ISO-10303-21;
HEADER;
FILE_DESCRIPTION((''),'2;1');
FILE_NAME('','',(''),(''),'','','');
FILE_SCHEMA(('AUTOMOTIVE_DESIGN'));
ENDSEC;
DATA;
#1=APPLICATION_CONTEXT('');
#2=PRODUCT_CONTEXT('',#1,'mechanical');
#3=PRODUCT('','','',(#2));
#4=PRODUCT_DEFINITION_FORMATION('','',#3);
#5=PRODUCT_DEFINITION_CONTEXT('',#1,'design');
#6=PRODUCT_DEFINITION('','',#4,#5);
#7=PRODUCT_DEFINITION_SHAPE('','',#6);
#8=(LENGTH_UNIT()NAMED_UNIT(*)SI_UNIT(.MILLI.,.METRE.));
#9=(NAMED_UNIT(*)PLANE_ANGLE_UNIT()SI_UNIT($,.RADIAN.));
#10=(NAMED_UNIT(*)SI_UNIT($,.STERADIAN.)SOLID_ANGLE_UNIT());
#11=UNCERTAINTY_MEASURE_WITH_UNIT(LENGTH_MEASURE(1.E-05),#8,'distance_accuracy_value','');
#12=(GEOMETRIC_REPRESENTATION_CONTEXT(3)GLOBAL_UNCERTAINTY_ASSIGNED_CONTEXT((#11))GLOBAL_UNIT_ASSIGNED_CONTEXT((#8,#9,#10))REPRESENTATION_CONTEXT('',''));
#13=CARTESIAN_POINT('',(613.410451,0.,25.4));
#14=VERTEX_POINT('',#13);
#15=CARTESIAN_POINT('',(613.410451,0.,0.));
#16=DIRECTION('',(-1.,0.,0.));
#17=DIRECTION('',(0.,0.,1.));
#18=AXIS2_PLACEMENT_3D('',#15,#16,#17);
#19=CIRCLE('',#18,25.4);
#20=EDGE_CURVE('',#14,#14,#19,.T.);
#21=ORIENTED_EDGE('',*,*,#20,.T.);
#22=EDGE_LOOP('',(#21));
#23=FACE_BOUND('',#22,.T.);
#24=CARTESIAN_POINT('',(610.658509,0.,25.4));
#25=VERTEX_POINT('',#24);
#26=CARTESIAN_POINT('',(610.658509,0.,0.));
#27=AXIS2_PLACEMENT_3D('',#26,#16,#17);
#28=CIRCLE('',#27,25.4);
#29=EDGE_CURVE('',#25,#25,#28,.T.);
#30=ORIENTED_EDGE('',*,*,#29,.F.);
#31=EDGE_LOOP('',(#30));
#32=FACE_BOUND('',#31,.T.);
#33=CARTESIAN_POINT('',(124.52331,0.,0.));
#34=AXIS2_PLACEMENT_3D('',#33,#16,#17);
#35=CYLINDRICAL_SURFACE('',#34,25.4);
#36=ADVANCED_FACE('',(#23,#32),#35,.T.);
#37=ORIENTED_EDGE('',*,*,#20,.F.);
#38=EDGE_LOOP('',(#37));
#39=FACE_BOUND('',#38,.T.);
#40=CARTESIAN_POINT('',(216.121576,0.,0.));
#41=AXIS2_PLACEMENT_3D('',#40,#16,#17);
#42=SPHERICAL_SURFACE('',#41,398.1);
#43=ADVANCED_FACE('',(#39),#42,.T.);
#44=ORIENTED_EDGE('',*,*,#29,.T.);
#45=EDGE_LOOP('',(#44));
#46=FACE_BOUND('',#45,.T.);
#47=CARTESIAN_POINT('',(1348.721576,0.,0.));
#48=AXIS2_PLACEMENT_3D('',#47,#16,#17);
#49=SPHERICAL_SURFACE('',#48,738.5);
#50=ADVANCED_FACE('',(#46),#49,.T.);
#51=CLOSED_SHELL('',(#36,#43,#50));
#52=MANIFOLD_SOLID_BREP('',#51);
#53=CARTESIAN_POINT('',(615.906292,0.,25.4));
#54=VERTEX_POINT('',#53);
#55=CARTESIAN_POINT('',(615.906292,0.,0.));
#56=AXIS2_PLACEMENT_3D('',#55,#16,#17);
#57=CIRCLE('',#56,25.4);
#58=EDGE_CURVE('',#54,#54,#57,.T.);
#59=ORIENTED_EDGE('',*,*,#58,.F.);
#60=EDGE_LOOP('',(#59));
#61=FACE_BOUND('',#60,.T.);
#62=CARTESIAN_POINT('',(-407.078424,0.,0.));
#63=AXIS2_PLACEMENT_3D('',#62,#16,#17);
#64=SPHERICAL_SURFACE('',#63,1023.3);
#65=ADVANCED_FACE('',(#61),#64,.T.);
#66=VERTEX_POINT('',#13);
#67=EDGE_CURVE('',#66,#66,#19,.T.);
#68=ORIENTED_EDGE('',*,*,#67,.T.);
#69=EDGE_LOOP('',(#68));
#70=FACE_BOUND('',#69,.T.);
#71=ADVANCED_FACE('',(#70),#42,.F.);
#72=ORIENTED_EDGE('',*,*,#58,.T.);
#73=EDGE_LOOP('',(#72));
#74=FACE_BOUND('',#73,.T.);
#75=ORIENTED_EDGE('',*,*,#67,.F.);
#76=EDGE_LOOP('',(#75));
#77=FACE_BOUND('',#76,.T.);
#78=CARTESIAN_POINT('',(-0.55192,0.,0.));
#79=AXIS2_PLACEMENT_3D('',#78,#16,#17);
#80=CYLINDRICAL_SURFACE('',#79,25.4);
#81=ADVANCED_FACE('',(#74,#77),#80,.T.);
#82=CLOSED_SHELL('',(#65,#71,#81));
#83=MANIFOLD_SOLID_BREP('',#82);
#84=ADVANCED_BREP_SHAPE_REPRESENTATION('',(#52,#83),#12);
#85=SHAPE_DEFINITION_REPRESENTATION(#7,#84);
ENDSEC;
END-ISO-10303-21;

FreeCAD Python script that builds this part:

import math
import FreeCAD as App
import Part
import Sketcher
from FreeCAD import Vector

doc = App.newDocument("Part")
params = doc.addObject("Spreadsheet::Sheet", "Params")
for row, (alias, value) in enumerate([
    ("sketch1_radius", "738.5 mm"),
    ("sketch1_radius2", "398.099999 mm"),
    ("sketch1_width", "4 mm"),
    ("revolution_angle", "360 deg"),
    ("sketch2_radius", "398.099999 mm"),
    ("sketch2_width", "2 mm"),
    ("revolution2_angle", "360 deg"),
], start=1):
    params.set(f"A{row}", alias)
    params.set(f"B{row}", "=" + value)
    params.setAlias(f"B{row}", alias)

body = doc.addObject("PartDesign::Body", "Body")

sketch1 = doc.addObject("Sketcher::SketchObject", "Sketch")
body.addObject(sketch1)
sketch1.AttachmentSupport = (doc.XZ_Plane, [""])
sketch1.MapMode = "FlatFace"
sketch1.addGeometry(Part.ArcOfCircle(Part.Circle(Vector(1348.7, 0, 0), Vector(0, 0, 1), 738.5), math.radians(-180), math.radians(-178.03)), False)
sketch1.addGeometry(Part.LineSegment(Vector(610.2, 0, 0), Vector(614.2, 0, 0)), False)
sketch1.addGeometry(Part.ArcOfCircle(Part.Circle(Vector(216.1, 0, 0), Vector(0, 0, 1), 398.1), math.radians(-3.66), math.radians(0)), False)
sketch1.addGeometry(Part.LineSegment(Vector(613.4, -25.4, 0), Vector(610.7, -25.4, 0)), False)
sketch1.addConstraint(Sketcher.Constraint("Coincident", 0, 1, 1, 1))
sketch1.addConstraint(Sketcher.Constraint("Coincident", 1, 2, 2, 2))
sketch1.addConstraint(Sketcher.Constraint("Coincident", 2, 1, 3, 1))
sketch1.addConstraint(Sketcher.Constraint("Coincident", 3, 2, 0, 2))
sketch1.addConstraint(Sketcher.Constraint("Horizontal", 1))
sketch1.addConstraint(Sketcher.Constraint("Horizontal", 3))
sketch1.addConstraint(Sketcher.Constraint("PointOnObject", 0, 3, -1))
sketch1.addConstraint(Sketcher.Constraint("PointOnObject", 2, 3, -1))
sketch1.addConstraint(Sketcher.Constraint("PointOnObject", 1, 2, -1))
sketch1.addConstraint(Sketcher.Constraint("Radius", 0, 738.5))
sketch1.addConstraint(Sketcher.Constraint("Radius", 2, 398.099999))
sketch1.addConstraint(Sketcher.Constraint("DistanceX", 1, 1, 1, 2, 4.0))
sketch1.addConstraint(Sketcher.Constraint("DistanceY", 3, 2, -1, 1, 25.4))
sketch1.addConstraint(Sketcher.Constraint("DistanceX", -1, 1, 2, 1, 613.410451))
sketch1.setExpression("Constraints[9]", "Params.sketch1_radius")
sketch1.setExpression("Constraints[10]", "Params.sketch1_radius2")
sketch1.setExpression("Constraints[11]", "Params.sketch1_width")
revolution = doc.addObject("PartDesign::Revolution", "Revolution")
body.addObject(revolution)
revolution.Profile = sketch1
revolution.ReferenceAxis = (sketch1, ["H_Axis"])
revolution.setExpression("Angle", "Params.revolution_angle")
body2 = doc.addObject("PartDesign::Body", "Body001")

sketch2 = doc.addObject("Sketcher::SketchObject", "Sketch001")
body2.addObject(sketch2)
sketch2.AttachmentSupport = (doc.getObject("XZ_Plane001"), [""])
sketch2.MapMode = "FlatFace"
sketch2.addGeometry(Part.LineSegment(Vector(615.9, -25.4, 0), Vector(613.4, -25.4, 0)), False)
sketch2.addGeometry(Part.ArcOfCircle(Part.Circle(Vector(216.1, 0, 0), Vector(0, 0, 1), 398.1), math.radians(-3.66), math.radians(0)), False)
sketch2.addGeometry(Part.LineSegment(Vector(614.2, 0, 0), Vector(616.2, 0, 0)), False)
sketch2.addGeometry(Part.ArcOfCircle(Part.Circle(Vector(-407.1, 0, 0), Vector(0, 0, 1), 1023.3), math.radians(-1.42), math.radians(0)), False)
sketch2.addConstraint(Sketcher.Constraint("Coincident", 0, 2, 1, 1))
sketch2.addConstraint(Sketcher.Constraint("Coincident", 1, 2, 2, 1))
sketch2.addConstraint(Sketcher.Constraint("Coincident", 2, 2, 3, 2))
sketch2.addConstraint(Sketcher.Constraint("Coincident", 3, 1, 0, 1))
sketch2.addConstraint(Sketcher.Constraint("Horizontal", 0))
sketch2.addConstraint(Sketcher.Constraint("Horizontal", 2))
sketch2.addConstraint(Sketcher.Constraint("PointOnObject", 1, 3, -1))
sketch2.addConstraint(Sketcher.Constraint("PointOnObject", 3, 3, -1))
sketch2.addConstraint(Sketcher.Constraint("PointOnObject", 2, 2, -1))
sketch2.addConstraint(Sketcher.Constraint("Radius", 1, 398.099999))
sketch2.addConstraint(Sketcher.Constraint("DistanceX", 2, 1, 2, 2, 2.0))
sketch2.addConstraint(Sketcher.Constraint("DistanceY", 0, 2, -1, 1, 25.4))
sketch2.addConstraint(Sketcher.Constraint("Radius", 3, 1023.299996))
sketch2.addConstraint(Sketcher.Constraint("DistanceX", 3, 3, -1, 1, 407.07842))
sketch2.setExpression("Constraints[9]", "Params.sketch2_radius")
sketch2.setExpression("Constraints[10]", "Params.sketch2_width")
revolution2 = doc.addObject("PartDesign::Revolution", "Revolution001")
body2.addObject(revolution2)
revolution2.Profile = sketch2
revolution2.ReferenceAxis = (sketch2, ["H_Axis"])
revolution2.setExpression("Angle", "Params.revolution2_angle")

doc.recompute()
